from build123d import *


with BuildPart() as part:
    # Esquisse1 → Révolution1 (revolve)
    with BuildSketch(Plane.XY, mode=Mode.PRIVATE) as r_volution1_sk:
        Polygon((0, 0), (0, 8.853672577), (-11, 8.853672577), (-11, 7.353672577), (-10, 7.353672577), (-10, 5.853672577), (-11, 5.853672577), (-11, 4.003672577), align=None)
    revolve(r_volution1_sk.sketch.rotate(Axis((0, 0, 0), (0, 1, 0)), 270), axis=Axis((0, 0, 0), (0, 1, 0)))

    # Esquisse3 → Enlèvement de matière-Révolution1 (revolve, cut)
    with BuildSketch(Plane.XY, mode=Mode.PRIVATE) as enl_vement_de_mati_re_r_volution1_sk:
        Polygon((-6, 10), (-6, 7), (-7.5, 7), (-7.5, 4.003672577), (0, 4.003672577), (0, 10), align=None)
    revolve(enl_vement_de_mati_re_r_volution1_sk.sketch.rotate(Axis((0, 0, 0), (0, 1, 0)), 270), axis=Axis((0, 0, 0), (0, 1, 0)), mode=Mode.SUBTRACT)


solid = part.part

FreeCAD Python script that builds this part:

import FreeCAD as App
import Part
import Sketcher

V = App.Vector
Q = App.Units.Quantity

doc = App.newDocument("Part")
body = doc.addObject("PartDesign::Body", "Body")

# Sketch on XY plane
sketch1 = body.newObject("Sketcher::SketchObject", "Sketch")
sketch1.AttachmentSupport = (doc.getObject("XY_Plane"), [""])
sketch1.MapMode = "FlatFace"
sketch1.addGeometry([
    Part.LineSegment(V(0, 0, 0), V(0, 8.853673, 0)),  # 0
    Part.LineSegment(V(0, 8.853673, 0), V(-11, 8.853673, 0)),  # 1
    Part.LineSegment(V(-11, 8.853673, 0), V(-11, 7.353673, 0)),  # 2
    Part.LineSegment(V(-11, 7.353673, 0), V(-10, 7.353673, 0)),  # 3
    Part.LineSegment(V(-10, 7.353673, 0), V(-10, 5.853673, 0)),  # 4
    Part.LineSegment(V(-10, 5.853673, 0), V(-11, 5.853673, 0)),  # 5
    Part.LineSegment(V(-11, 5.853673, 0), V(-11, 4.003673, 0)),  # 6
    Part.LineSegment(V(-11, 4.003673, 0), V(0, 0, 0)),  # 7
], False)
sketch1.addConstraint([
    Sketcher.Constraint("Coincident", 0, 2, 1, 1),
    Sketcher.Constraint("Coincident", 1, 2, 2, 1),
    Sketcher.Constraint("Coincident", 2, 2, 3, 1),
    Sketcher.Constraint("Coincident", 3, 2, 4, 1),
    Sketcher.Constraint("Coincident", 4, 2, 5, 1),
    Sketcher.Constraint("Coincident", 5, 2, 6, 1),
    Sketcher.Constraint("Coincident", 6, 2, 7, 1),
    Sketcher.Constraint("Coincident", 7, 2, 0, 1),
    Sketcher.Constraint("Vertical", 0),
    Sketcher.Constraint("Horizontal", 1),
    Sketcher.Constraint("Vertical", 2),
    Sketcher.Constraint("Horizontal", 3),
    Sketcher.Constraint("Vertical", 4),
    Sketcher.Constraint("Horizontal", 5),
    Sketcher.Constraint("Vertical", 6),
    Sketcher.Constraint("Coincident", 7, 2, -1, 1),
    Sketcher.Constraint("Vertical", 2, 2, 5, 2),
    Sketcher.Constraint("Equal", 2, 4),
    Sketcher.Constraint("DistanceX", 1, 2, 1, 1, Q("11 mm")),
    Sketcher.Constraint("DistanceX", 3, 1, 3, 2, Q("1 mm")),
    Sketcher.Constraint("Angle", 7, Q("-20 deg")),
    Sketcher.Constraint("DistanceY", 2, 2, 2, 1, Q("1.5 mm")),
    Sketcher.Constraint("DistanceY", 6, 2, 6, 1, Q("1.85 mm")),
])
revolution = body.newObject("PartDesign::Revolution", "Revolution")
revolution.Profile = sketch1
revolution.ReferenceAxis = (sketch1, ["V_Axis"])
revolution.Angle = 360

# Sketch on XY plane
sketch2 = body.newObject("Sketcher::SketchObject", "Sketch001")
sketch2.AttachmentSupport = (doc.getObject("XY_Plane"), [""])
sketch2.MapMode = "FlatFace"
sketch2.addGeometry([
    Part.LineSegment(V(-6, 10, 0), V(-6, 7, 0)),  # 0
    Part.LineSegment(V(-6, 7, 0), V(-7.5, 7, 0)),  # 1
    Part.LineSegment(V(-7.5, 7, 0), V(-7.5, 4.003673, 0)),  # 2
    Part.LineSegment(V(-7.5, 4.003673, 0), V(0, 4.003673, 0)),  # 3
    Part.LineSegment(V(0, 4.003673, 0), V(0, 10, 0)),  # 4
    Part.LineSegment(V(0, 10, 0), V(-6, 10, 0)),  # 5
], False)
sketch2.addConstraint([
    Sketcher.Constraint("Coincident", 0, 2, 1, 1),
    Sketcher.Constraint("Coincident", 1, 2, 2, 1),
    Sketcher.Constraint("Coincident", 2, 2, 3, 1),
    Sketcher.Constraint("Coincident", 3, 2, 4, 1),
    Sketcher.Constraint("Coincident", 4, 2, 5, 1),
    Sketcher.Constraint("Coincident", 5, 2, 0, 1),
    Sketcher.Constraint("Vertical", 0),
    Sketcher.Constraint("Horizontal", 1),
    Sketcher.Constraint("Vertical", 2),
    Sketcher.Constraint("Horizontal", 3),
    Sketcher.Constraint("Vertical", 4),
    Sketcher.Constraint("Horizontal", 5),
    Sketcher.Constraint("PointOnObject", 3, 2, -2),
    Sketcher.Constraint("DistanceX", 5, 2, 5, 1, Q("6 mm")),
    Sketcher.Constraint("DistanceY", 0, 2, 0, 1, Q("3 mm")),
    Sketcher.Constraint("DistanceX", 1, 2, 1, 1, Q("1.5 mm")),
    Sketcher.Constraint("DistanceY", -1, 1, 0, 2, Q("7 mm")),
    Sketcher.Constraint("DistanceY", 2, 2, 2, 1, Q("2.996327 mm")),
])
groove = body.newObject("PartDesign::Groove", "Groove")
groove.Profile = sketch2
groove.ReferenceAxis = (sketch2, ["V_Axis"])
groove.Angle = 360

doc.recompute()
